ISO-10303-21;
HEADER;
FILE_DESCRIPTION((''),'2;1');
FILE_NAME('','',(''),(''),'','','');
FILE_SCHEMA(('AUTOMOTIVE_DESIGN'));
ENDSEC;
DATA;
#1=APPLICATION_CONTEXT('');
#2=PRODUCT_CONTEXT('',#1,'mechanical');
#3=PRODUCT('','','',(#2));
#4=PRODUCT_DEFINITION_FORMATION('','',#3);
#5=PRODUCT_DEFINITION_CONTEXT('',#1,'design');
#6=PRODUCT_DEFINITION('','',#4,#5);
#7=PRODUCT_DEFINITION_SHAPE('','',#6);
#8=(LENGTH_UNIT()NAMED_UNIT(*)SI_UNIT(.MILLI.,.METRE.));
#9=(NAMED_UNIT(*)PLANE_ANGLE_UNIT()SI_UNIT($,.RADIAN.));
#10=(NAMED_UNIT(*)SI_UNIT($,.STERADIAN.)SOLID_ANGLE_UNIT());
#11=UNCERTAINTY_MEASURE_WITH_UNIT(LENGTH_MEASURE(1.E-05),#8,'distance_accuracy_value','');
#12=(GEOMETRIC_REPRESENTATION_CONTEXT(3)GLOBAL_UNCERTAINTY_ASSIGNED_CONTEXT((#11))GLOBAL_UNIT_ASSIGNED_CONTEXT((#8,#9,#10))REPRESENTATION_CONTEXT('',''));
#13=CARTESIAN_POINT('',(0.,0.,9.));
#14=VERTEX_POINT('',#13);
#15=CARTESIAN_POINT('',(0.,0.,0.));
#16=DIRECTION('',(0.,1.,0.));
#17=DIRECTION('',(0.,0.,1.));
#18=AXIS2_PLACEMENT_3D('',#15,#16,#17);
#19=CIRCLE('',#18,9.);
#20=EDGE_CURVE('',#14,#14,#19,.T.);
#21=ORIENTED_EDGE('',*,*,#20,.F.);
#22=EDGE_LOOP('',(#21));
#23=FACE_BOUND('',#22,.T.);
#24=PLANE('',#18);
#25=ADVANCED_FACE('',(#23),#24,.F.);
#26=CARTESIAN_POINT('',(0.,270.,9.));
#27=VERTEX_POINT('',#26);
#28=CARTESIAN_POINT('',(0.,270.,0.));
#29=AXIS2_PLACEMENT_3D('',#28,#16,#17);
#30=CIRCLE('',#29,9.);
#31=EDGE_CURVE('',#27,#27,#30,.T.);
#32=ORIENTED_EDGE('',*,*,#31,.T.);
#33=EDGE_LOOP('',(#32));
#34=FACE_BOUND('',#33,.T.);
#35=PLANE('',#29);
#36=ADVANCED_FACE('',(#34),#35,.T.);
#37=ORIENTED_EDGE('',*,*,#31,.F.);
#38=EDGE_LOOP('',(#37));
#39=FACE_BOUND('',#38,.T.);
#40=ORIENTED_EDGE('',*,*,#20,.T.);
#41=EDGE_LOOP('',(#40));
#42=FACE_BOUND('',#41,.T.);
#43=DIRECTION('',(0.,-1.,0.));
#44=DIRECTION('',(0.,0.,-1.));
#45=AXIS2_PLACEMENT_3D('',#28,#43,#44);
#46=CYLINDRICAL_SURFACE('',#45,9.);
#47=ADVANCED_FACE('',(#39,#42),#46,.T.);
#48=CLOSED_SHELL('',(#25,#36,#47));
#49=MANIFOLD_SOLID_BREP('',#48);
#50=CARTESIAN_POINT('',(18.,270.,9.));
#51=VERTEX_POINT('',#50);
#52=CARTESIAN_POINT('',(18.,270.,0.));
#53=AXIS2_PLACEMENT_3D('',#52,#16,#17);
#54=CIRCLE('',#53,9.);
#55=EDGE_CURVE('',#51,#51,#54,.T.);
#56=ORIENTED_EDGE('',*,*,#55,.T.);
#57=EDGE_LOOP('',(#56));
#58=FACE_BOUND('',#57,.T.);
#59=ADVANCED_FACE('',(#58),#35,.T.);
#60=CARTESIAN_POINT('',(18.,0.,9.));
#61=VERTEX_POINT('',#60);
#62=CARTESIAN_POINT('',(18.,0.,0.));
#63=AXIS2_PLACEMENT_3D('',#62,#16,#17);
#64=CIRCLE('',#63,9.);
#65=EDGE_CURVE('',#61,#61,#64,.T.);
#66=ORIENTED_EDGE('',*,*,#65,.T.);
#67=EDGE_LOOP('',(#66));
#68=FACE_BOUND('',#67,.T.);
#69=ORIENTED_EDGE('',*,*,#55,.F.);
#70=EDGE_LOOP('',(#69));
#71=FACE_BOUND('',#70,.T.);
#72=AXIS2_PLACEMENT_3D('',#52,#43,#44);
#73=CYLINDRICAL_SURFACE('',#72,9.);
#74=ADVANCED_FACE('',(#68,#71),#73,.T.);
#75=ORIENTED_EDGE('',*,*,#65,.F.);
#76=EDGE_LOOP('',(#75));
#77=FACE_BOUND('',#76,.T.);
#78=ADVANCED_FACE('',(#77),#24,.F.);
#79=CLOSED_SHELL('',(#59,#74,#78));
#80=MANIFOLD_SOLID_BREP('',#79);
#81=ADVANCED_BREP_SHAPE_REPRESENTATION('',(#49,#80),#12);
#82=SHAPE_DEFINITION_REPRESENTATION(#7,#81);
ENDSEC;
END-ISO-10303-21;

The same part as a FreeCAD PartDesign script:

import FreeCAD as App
import Part
import Sketcher

doc = App.newDocument("Part")
body = doc.addObject("PartDesign::Body", "Body")

# Sketch on XZ plane
sketch1 = body.newObject("Sketcher::SketchObject", "Sketch")
sketch1.AttachmentSupport = (doc.getObject("XZ_Plane"), [""])
sketch1.MapMode = "FlatFace"
sketch1.addGeometry(Part.Circle(App.Vector(0, 0, 0), App.Vector(0, 0, 1), 9), False)
sketch1.addConstraint([
    Sketcher.Constraint("Coincident", 0, 3, -1, 1),
    Sketcher.Constraint("Diameter", 0, 18.0),
])
pad1 = body.newObject("PartDesign::Pad", "Pad")
pad1.Profile = sketch1
pad1.Length = 270
pad1.Reversed = True
body2 = doc.addObject("PartDesign::Body", "Body001")

# Sketch on XZ plane
sketch2 = body2.newObject("Sketcher::SketchObject", "Sketch001")
sketch2.AttachmentSupport = (doc.getObject("XZ_Plane001"), [""])
sketch2.MapMode = "FlatFace"
sketch2.addGeometry(Part.Circle(App.Vector(18, 0, 0), App.Vector(0, 0, 1), 9), False)
sketch2.addConstraint([
    Sketcher.Constraint("PointOnObject", 0, 3, -1),
    Sketcher.Constraint("Diameter", 0, 18.0),
    Sketcher.Constraint("DistanceX", -1, 1, 0, 3, 18.0),
])
pad2 = body2.newObject("PartDesign::Pad", "Pad001")
pad2.Profile = sketch2
pad2.Length = 270
pad2.Reversed = True

doc.recompute()
